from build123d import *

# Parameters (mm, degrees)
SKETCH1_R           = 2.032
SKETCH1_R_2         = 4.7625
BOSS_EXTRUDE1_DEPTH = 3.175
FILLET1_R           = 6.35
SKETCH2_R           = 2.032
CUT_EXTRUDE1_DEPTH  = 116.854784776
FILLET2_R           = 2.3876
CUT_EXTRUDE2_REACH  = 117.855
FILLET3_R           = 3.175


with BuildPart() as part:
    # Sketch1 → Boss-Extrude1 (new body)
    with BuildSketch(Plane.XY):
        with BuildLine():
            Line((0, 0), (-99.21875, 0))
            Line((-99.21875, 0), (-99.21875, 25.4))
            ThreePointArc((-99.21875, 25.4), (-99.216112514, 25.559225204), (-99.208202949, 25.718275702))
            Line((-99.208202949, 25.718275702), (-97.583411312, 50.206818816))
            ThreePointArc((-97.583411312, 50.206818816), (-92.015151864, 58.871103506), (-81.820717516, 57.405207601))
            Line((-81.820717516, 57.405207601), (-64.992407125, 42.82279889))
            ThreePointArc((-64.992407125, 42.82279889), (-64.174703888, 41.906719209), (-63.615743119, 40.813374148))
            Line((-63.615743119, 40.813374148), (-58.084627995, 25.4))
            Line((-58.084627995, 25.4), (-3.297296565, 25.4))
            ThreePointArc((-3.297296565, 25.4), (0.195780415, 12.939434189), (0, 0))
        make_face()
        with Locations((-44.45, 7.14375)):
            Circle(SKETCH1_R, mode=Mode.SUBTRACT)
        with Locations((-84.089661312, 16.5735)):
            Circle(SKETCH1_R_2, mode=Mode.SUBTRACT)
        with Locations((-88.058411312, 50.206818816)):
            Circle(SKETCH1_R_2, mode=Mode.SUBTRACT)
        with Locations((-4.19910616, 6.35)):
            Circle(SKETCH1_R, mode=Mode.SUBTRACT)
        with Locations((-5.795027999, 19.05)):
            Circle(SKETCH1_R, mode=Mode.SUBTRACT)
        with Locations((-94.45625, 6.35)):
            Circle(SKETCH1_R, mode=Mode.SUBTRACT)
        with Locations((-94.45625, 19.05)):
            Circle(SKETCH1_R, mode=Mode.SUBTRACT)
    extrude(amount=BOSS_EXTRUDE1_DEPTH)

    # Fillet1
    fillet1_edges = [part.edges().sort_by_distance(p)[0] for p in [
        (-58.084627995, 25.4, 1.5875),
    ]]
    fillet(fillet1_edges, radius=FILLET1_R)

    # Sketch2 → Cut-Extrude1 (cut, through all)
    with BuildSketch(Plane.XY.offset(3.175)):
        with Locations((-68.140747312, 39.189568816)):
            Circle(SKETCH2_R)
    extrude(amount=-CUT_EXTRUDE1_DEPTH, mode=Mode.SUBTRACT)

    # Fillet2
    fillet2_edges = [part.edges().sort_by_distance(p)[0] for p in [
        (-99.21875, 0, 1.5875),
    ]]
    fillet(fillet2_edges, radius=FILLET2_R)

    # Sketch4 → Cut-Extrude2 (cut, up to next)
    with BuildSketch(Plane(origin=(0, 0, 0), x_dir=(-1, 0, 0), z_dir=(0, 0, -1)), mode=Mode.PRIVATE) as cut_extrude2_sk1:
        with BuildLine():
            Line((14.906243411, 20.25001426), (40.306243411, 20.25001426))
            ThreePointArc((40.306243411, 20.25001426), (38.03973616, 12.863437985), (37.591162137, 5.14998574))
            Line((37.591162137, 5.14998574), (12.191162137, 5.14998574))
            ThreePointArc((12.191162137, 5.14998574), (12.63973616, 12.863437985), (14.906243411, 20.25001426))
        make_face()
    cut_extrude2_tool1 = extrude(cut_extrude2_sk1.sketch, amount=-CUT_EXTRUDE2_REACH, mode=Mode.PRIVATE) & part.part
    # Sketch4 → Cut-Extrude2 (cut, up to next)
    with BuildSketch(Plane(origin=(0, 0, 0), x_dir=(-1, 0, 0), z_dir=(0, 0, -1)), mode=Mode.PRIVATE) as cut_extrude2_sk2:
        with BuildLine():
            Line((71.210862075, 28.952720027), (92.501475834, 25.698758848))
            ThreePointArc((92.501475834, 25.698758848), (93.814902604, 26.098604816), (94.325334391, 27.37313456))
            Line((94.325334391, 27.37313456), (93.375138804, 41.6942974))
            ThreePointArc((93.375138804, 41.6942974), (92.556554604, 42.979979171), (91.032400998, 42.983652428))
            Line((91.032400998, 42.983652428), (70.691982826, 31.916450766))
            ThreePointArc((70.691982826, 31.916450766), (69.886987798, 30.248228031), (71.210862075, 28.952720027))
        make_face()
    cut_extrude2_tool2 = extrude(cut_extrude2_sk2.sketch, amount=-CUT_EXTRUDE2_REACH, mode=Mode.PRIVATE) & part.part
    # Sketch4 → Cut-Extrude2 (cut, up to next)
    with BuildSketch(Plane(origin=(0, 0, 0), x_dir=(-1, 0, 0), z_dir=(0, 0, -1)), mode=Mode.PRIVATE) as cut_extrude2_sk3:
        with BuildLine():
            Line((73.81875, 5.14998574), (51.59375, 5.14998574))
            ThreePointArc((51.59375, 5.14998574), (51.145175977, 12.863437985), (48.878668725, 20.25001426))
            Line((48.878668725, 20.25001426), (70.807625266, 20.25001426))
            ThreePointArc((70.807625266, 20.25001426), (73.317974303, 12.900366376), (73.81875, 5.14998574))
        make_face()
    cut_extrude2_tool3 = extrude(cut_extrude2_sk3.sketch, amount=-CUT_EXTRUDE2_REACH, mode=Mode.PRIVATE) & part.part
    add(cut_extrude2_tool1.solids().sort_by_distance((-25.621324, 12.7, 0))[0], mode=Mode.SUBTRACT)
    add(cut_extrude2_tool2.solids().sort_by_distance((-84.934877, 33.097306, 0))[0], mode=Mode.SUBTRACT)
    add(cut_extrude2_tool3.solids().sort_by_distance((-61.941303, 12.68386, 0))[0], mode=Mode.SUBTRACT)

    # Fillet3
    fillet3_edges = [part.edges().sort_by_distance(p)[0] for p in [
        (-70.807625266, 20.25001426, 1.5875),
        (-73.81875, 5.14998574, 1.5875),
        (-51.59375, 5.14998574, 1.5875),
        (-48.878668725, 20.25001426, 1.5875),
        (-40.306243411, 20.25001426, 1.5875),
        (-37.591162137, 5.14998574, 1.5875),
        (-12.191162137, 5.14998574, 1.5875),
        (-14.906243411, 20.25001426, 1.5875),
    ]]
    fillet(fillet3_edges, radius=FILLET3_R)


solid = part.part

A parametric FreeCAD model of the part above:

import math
import FreeCAD as App
import Part
import Sketcher

V = App.Vector
Q = App.Units.Quantity


def edges_at(feature, points):
    """Names of the edges that pass closest to the given points."""
    edges = feature.Shape.Edges
    near = lambda p: min(range(len(edges)), key=lambda i: edges[i].distToShape(Part.Vertex(*p))[0])
    return sorted({f"Edge{near(p) + 1}" for p in points})

doc = App.newDocument("Part")
body = doc.addObject("PartDesign::Body", "Body")

# Sketch on XY plane
sketch1 = body.newObject("Sketcher::SketchObject", "Sketch")
sketch1.AttachmentSupport = (doc.getObject("XY_Plane"), [""])
sketch1.MapMode = "FlatFace"
sketch1.addGeometry(Part.LineSegment(V(-99.22, 0, 0), V(0, 0, 0)), False)
sketch1.addGeometry(Part.ArcOfCircle(Part.Circle(V(-44.45, 7.14, 0), V(0, 0, 1), 45.02), math.radians(-9), math.radians(24)), False)
sketch1.addGeometry(Part.LineSegment(V(-3.3, 25.4, 0), V(-58.08, 25.4, 0)), False)
sketch1.addGeometry(Part.LineSegment(V(-58.08, 25.4, 0), V(-63.62, 40.81, 0)), False)
sketch1.addGeometry(Part.ArcOfCircle(Part.Circle(V(-68.14, 39.19, 0), V(0, 0, 1), 4.81), math.radians(20), math.radians(49)), False)
sketch1.addGeometry(Part.LineSegment(V(-64.99, 42.82, 0), V(-81.82, 57.41, 0)), False)
sketch1.addGeometry(Part.ArcOfCircle(Part.Circle(V(-88.06, 50.21, 0), V(0, 0, 1), 9.53), math.radians(49), math.radians(180)), False)
sketch1.addGeometry(Part.LineSegment(V(-97.58, 50.21, 0), V(-99.21, 25.72, 0)), False)
sketch1.addGeometry(Part.ArcOfCircle(Part.Circle(V(-94.41, 25.4, 0), V(0, 0, 1), 4.81), math.radians(176.2), math.radians(180)), False)
sketch1.addGeometry(Part.LineSegment(V(-99.22, 25.4, 0), V(-99.22, 0, 0)), False)
sketch1.addGeometry(Part.Circle(V(-4.2, 6.35, 0), V(0, 0, 1), 2.03), False)
sketch1.addGeometry(Part.Circle(V(-44.45, 7.14, 0), V(0, 0, 1), 2.03), False)
sketch1.addGeometry(Part.Circle(V(-5.8, 19.05, 0), V(0, 0, 1), 2.03), False)
sketch1.addGeometry(Part.Circle(V(-94.46, 6.35, 0), V(0, 0, 1), 2.03), False)
sketch1.addGeometry(Part.Circle(V(-84.09, 16.57, 0), V(0, 0, 1), 4.76), False)
sketch1.addGeometry(Part.Circle(V(-94.46, 19.05, 0), V(0, 0, 1), 2.03), False)
sketch1.addGeometry(Part.Circle(V(-88.06, 50.21, 0), V(0, 0, 1), 4.76), False)
sketch1.addConstraint(Sketcher.Constraint("Coincident", 0, 2, 1, 1))
sketch1.addConstraint(Sketcher.Constraint("Coincident", 1, 2, 2, 1))
sketch1.addConstraint(Sketcher.Constraint("Coincident", 2, 2, 3, 1))
sketch1.addConstraint(Sketcher.Constraint("Tangent", 3, 2, 4, 1))
sketch1.addConstraint(Sketcher.Constraint("Tangent", 4, 2, 5, 1))
sketch1.addConstraint(Sketcher.Constraint("Tangent", 5, 2, 6, 1))
sketch1.addConstraint(Sketcher.Constraint("Coincident", 6, 2, 7, 1))
sketch1.addConstraint(Sketcher.Constraint("Tangent", 7, 2, 8, 1))
sketch1.addConstraint(Sketcher.Constraint("Tangent", 8, 2, 9, 1))
sketch1.addConstraint(Sketcher.Constraint("Coincident", 9, 2, 0, 1))
sketch1.addConstraint(Sketcher.Constraint("Horizontal", 0))
sketch1.addConstraint(Sketcher.Constraint("Horizontal", 2))
sketch1.addConstraint(Sketcher.Constraint("Vertical", 9))
sketch1.addConstraint(Sketcher.Constraint("Coincident", 0, 2, -1, 1))
sketch1.addConstraint(Sketcher.Constraint("Coincident", 11, 3, 1, 3))
sketch1.addConstraint(Sketcher.Constraint("Coincident", 16, 3, 6, 3))
sketch1.addConstraint(Sketcher.Constraint("Equal", 4, 8))
sketch1.addConstraint(Sketcher.Constraint("Equal", 10, 11))
sketch1.addConstraint(Sketcher.Constraint("Equal", 11, 12))
sketch1.addConstraint(Sketcher.Constraint("Equal", 12, 13))
sketch1.addConstraint(Sketcher.Constraint("Equal", 13, 15))
sketch1.addConstraint(Sketcher.Constraint("Equal", 14, 16))
sketch1.addConstraint(Sketcher.Constraint("Horizontal", 10, 3, 13, 3))
sketch1.addConstraint(Sketcher.Constraint("Horizontal", 12, 3, 15, 3))
sketch1.addConstraint(Sketcher.Constraint("Horizontal", 8, 3, 1, 2))
sketch1.addConstraint(Sketcher.Constraint("Horizontal", 16, 3, 6, 2))
sketch1.addConstraint(Sketcher.Constraint("Vertical", 13, 3, 15, 3))
sketch1.addConstraint(Sketcher.Constraint("Diameter", 10, Q("0.16 in")))
sketch1.addConstraint(Sketcher.Constraint("DistanceY", 9, 2, 9, 1, Q("1 in")))
sketch1.addConstraint(Sketcher.Constraint("Diameter", 14, Q("0.375 in")))
sketch1.addConstraint(Sketcher.Constraint("Radius", 6, Q("0.375 in")))
sketch1.addConstraint(Sketcher.Constraint("DistanceY", 10, 3, 12, 3, Q("0.5 in")))
sketch1.addConstraint(Sketcher.Constraint("DistanceX", 0, 1, 0, 2, Q("3.90625 in")))
sketch1.addConstraint(Sketcher.Constraint("DistanceX", 1, 3, -1, 1, Q("1.75 in")))
sketch1.addConstraint(Sketcher.Constraint("DistanceY", -1, 1, 10, 3, Q("0.25 in")))
sketch1.addConstraint(Sketcher.Constraint("DistanceY", -1, 1, 1, 3, Q("0.28125 in")))
sketch1.addConstraint(Sketcher.Constraint("DistanceX", 13, 3, -1, 1, Q("3.71875 in")))
sketch1.addConstraint(Sketcher.Constraint("DistanceX", 6, 3, 14, 3, Q("0.15625 in")))
sketch1.addConstraint(Sketcher.Constraint("DistanceY", -1, 1, 14, 3, Q("0.6525 in")))
sketch1.addConstraint(Sketcher.Constraint("Radius", 4, Q("4.807536 mm")))
sketch1.addConstraint(Sketcher.Constraint("DistanceX", 2, 2, 2, 1, Q("54.787331 mm")))
sketch1.addConstraint(Sketcher.Constraint("DistanceY", -1, 1, 4, 2, Q("42.822799 mm")))
sketch1.addConstraint(Sketcher.Constraint("DistanceY", -1, 1, 4, 3, Q("39.189569 mm")))
sketch1.addConstraint(Sketcher.Constraint("DistanceX", 6, 3, -1, 1, Q("88.058411 mm")))
sketch1.addConstraint(Sketcher.Constraint("DistanceY", -1, 1, 6, 3, Q("50.206819 mm")))
sketch1.addConstraint(Sketcher.Constraint("DistanceX", 4, 3, 10, 3, Q("63.941641 mm")))
sketch1.addConstraint(Sketcher.Constraint("DistanceX", 12, 3, 10, 3, Q("1.595922 mm")))
pad1 = body.newObject("PartDesign::Pad", "Pad")
pad1.Profile = sketch1
pad1.Length = Q("0.125 in")
doc.recompute()

fillet = body.newObject("PartDesign::Fillet", "Fillet")
fillet.Base = (pad1, edges_at(pad1, [(-58.085, 25.4, 1.587)]))
fillet.Radius = Q("0.25 in")

# Sketch on XY plane
sketch2 = body.newObject("Sketcher::SketchObject", "Sketch001")
sketch2.AttachmentSupport = (doc.getObject("XY_Plane"), [""])
sketch2.MapMode = "FlatFace"
sketch2.AttachmentOffset = App.Placement(V(0, 0, 0.125 * 25.4), App.Rotation())
sketch2.addGeometry(Part.Circle(V(-68.1, 39.2, 0), V(0, 0, 1), 2), False)
sketch2.addConstraint(Sketcher.Constraint("Diameter", 0, Q("0.16 in")))
sketch2.addConstraint(Sketcher.Constraint("DistanceY", -1, 1, 0, 3, Q("39.189569 mm")))
sketch2.addConstraint(Sketcher.Constraint("DistanceX", 0, 3, -1, 1, Q("68.140747 mm")))
pocket1 = body.newObject("PartDesign::Pocket", "Pocket")
pocket1.Profile = sketch2
pocket1.Type = "ThroughAll"
doc.recompute()

fillet2 = body.newObject("PartDesign::Fillet", "Fillet001")
fillet2.Base = (pocket1, edges_at(pocket1, [(-99.219, 0, 1.587)]))
fillet2.Radius = Q("0.094 in")

# Sketch on XY plane
sketch3 = body.newObject("Sketcher::SketchObject", "Sketch002")
sketch3.AttachmentSupport = (doc.getObject("XY_Plane"), [""])
sketch3.MapMode = "FlatFace"
sketch3.addGeometry(Part.LineSegment(V(-40, 20, 0), V(-15, 20, 0)), False)
sketch3.addGeometry(Part.ArcOfCircle(Part.Circle(V(-44, 7, 0), V(0, 0, 1), 32), math.radians(-4), math.radians(24)), False)
sketch3.addGeometry(Part.LineSegment(V(-12, 5, 0), V(-38, 5, 0)), False)
sketch3.addGeometry(Part.ArcOfCircle(Part.Circle(V(-70, 7, 0), V(0, 0, 1), 32), math.radians(-4), math.radians(24)), False)
sketch3.addConstraint(Sketcher.Constraint("Coincident", 0, 2, 1, 2))
sketch3.addConstraint(Sketcher.Constraint("Coincident", 1, 1, 2, 1))
sketch3.addConstraint(Sketcher.Constraint("Coincident", 2, 2, 3, 1))
sketch3.addConstraint(Sketcher.Constraint("Coincident", 3, 2, 0, 1))
sketch3.addConstraint(Sketcher.Constraint("Horizontal", 0))
sketch3.addConstraint(Sketcher.Constraint("Horizontal", 2))
sketch3.addConstraint(Sketcher.Constraint("Equal", 1, 3))
sketch3.addConstraint(Sketcher.Constraint("Horizontal", 1, 3, 3, 3))
sketch3.addConstraint(Sketcher.Constraint("DistanceX", 0, 1, 0, 2, Q("1 in")))
sketch3.addConstraint(Sketcher.Constraint("DistanceX", 1, 3, -1, 1, Q("1.75 in")))
sketch3.addConstraint(Sketcher.Constraint("DistanceY", -1, 1, 1, 3, Q("0.28125 in")))
sketch3.addConstraint(Sketcher.Constraint("Radius", 1, Q("32.320392 mm")))
sketch3.addConstraint(Sketcher.Constraint("DistanceX", 0, 2, 1, 1, Q("2.715081 mm")))
sketch3.addConstraint(Sketcher.Constraint("DistanceY", 1, 1, 0, 2, Q("15.100029 mm")))
pocket2 = body.newObject("PartDesign::Pocket", "Pocket001")
pocket2.Profile = sketch3
pocket2.Type = "UpToFirst"
pocket2.Reversed = True

# Sketch on XY plane
sketch4 = body.newObject("Sketcher::SketchObject", "Sketch003")
sketch4.AttachmentSupport = (doc.getObject("XY_Plane"), [""])
sketch4.MapMode = "FlatFace"
sketch4.addGeometry(Part.LineSegment(V(-71.2, 29, 0), V(-92.5, 25.7, 0)), False)
sketch4.addGeometry(Part.ArcOfCircle(Part.Circle(V(-92.7, 27.3, 0), V(0, 0, 1), 1.6), math.radians(176), math.radians(279)), False)
sketch4.addGeometry(Part.LineSegment(V(-94.3, 27.4, 0), V(-93.4, 41.7, 0)), False)
sketch4.addGeometry(Part.ArcOfCircle(Part.Circle(V(-91.8, 41.6, 0), V(0, 0, 1), 1.6), math.radians(61), math.radians(176)), False)
sketch4.addGeometry(Part.LineSegment(V(-91, 43, 0), V(-70.7, 31.9, 0)), False)
sketch4.addGeometry(Part.ArcOfCircle(Part.Circle(V(-71.5, 30.5, 0), V(0, 0, 1), 1.6), math.radians(-81), math.radians(61)), False)
sketch4.addConstraint(Sketcher.Constraint("Tangent", 0, 2, 1, 2))
sketch4.addConstraint(Sketcher.Constraint("Tangent", 1, 1, 2, 1))
sketch4.addConstraint(Sketcher.Constraint("Tangent", 2, 2, 3, 2))
sketch4.addConstraint(Sketcher.Constraint("Tangent", 3, 1, 4, 1))
sketch4.addConstraint(Sketcher.Constraint("Tangent", 4, 2, 5, 2))
sketch4.addConstraint(Sketcher.Constraint("Tangent", 5, 1, 0, 1))
sketch4.addConstraint(Sketcher.Constraint("Equal", 1, 3))
sketch4.addConstraint(Sketcher.Constraint("Equal", 3, 5))
sketch4.addConstraint(Sketcher.Constraint("Radius", 1, Q("0.0625 in")))
sketch4.addConstraint(Sketcher.Constraint("DistanceY", -1, 1, 3, 3, Q("41.589199 mm")))
sketch4.addConstraint(Sketcher.Constraint("DistanceX", 3, 1, -1, 1, Q("91.032401 mm")))
sketch4.addConstraint(Sketcher.Constraint("DistanceY", 5, 3, 3, 3, Q("11.067202 mm")))
sketch4.addConstraint(Sketcher.Constraint("DistanceY", 1, 3, 1, 1, Q("0.105098 mm")))
sketch4.addConstraint(Sketcher.Constraint("Distance", 0, Q("21.537839 mm")))
sketch4.addConstraint(Sketcher.Constraint("Distance", 2, Q("14.352651 mm")))
pocket3 = body.newObject("PartDesign::Pocket", "Pocket002")
pocket3.Profile = sketch4
pocket3.Type = "UpToFirst"
pocket3.Reversed = True

# Sketch on XY plane
sketch5 = body.newObject("Sketcher::SketchObject", "Sketch004")
sketch5.AttachmentSupport = (doc.getObject("XY_Plane"), [""])
sketch5.MapMode = "FlatFace"
sketch5.addGeometry(Part.LineSegment(V(-52, 5, 0), V(-74, 5, 0)), False)
sketch5.addGeometry(Part.ArcOfCircle(Part.Circle(V(-44, 7, 0), V(0, 0, 1), 29), math.radians(154), math.radians(184)), False)
sketch5.addGeometry(Part.LineSegment(V(-71, 20, 0), V(-49, 20, 0)), False)
sketch5.addGeometry(Part.ArcOfCircle(Part.Circle(V(-19, 7, 0), V(0, 0, 1), 32), math.radians(156), math.radians(184)), False)
sketch5.addConstraint(Sketcher.Constraint("Coincident", 0, 2, 1, 2))
sketch5.addConstraint(Sketcher.Constraint("Coincident", 1, 1, 2, 1))
sketch5.addConstraint(Sketcher.Constraint("Coincident", 2, 2, 3, 1))
sketch5.addConstraint(Sketcher.Constraint("Coincident", 3, 2, 0, 1))
sketch5.addConstraint(Sketcher.Constraint("Horizontal", 0))
sketch5.addConstraint(Sketcher.Constraint("Horizontal", 2))
sketch5.addConstraint(Sketcher.Constraint("Horizontal", 1, 3, 3, 3))
sketch5.addConstraint(Sketcher.Constraint("DistanceX", 0, 2, 0, 1, Q("0.875 in")))
sketch5.addConstraint(Sketcher.Constraint("DistanceX", 1, 3, -1, 1, Q("1.75 in")))
sketch5.addConstraint(Sketcher.Constraint("DistanceY", -1, 1, 1, 3, Q("0.28125 in")))
sketch5.addConstraint(Sketcher.Constraint("DistanceX", 0, 2, -1, 1, Q("2.90625 in")))
sketch5.addConstraint(Sketcher.Constraint("Radius", 3, Q("32.320392 mm")))
sketch5.addConstraint(Sketcher.Constraint("Radius", 1, Q("29.436348 mm")))
sketch5.addConstraint(Sketcher.Constraint("DistanceX", 2, 1, 2, 2, Q("21.928957 mm")))
pocket4 = body.newObject("PartDesign::Pocket", "Pocket003")
pocket4.Profile = sketch5
pocket4.Type = "UpToFirst"
pocket4.Reversed = True
doc.recompute()

fillet3 = body.newObject("PartDesign::Fillet", "Fillet002")
fillet3.Base = (pocket4, edges_at(pocket4, [
    (-70.808, 20.25, 1.587),
    (-73.819, 5.15, 1.587),
    (-51.594, 5.15, 1.587),
    (-48.879, 20.25, 1.587),
    (-40.306, 20.25, 1.587),
    (-37.591, 5.15, 1.587),
    (-12.191, 5.15, 1.587),
    (-14.906, 20.25, 1.587),
]))
fillet3.Radius = Q("0.125 in")

doc.recompute()
